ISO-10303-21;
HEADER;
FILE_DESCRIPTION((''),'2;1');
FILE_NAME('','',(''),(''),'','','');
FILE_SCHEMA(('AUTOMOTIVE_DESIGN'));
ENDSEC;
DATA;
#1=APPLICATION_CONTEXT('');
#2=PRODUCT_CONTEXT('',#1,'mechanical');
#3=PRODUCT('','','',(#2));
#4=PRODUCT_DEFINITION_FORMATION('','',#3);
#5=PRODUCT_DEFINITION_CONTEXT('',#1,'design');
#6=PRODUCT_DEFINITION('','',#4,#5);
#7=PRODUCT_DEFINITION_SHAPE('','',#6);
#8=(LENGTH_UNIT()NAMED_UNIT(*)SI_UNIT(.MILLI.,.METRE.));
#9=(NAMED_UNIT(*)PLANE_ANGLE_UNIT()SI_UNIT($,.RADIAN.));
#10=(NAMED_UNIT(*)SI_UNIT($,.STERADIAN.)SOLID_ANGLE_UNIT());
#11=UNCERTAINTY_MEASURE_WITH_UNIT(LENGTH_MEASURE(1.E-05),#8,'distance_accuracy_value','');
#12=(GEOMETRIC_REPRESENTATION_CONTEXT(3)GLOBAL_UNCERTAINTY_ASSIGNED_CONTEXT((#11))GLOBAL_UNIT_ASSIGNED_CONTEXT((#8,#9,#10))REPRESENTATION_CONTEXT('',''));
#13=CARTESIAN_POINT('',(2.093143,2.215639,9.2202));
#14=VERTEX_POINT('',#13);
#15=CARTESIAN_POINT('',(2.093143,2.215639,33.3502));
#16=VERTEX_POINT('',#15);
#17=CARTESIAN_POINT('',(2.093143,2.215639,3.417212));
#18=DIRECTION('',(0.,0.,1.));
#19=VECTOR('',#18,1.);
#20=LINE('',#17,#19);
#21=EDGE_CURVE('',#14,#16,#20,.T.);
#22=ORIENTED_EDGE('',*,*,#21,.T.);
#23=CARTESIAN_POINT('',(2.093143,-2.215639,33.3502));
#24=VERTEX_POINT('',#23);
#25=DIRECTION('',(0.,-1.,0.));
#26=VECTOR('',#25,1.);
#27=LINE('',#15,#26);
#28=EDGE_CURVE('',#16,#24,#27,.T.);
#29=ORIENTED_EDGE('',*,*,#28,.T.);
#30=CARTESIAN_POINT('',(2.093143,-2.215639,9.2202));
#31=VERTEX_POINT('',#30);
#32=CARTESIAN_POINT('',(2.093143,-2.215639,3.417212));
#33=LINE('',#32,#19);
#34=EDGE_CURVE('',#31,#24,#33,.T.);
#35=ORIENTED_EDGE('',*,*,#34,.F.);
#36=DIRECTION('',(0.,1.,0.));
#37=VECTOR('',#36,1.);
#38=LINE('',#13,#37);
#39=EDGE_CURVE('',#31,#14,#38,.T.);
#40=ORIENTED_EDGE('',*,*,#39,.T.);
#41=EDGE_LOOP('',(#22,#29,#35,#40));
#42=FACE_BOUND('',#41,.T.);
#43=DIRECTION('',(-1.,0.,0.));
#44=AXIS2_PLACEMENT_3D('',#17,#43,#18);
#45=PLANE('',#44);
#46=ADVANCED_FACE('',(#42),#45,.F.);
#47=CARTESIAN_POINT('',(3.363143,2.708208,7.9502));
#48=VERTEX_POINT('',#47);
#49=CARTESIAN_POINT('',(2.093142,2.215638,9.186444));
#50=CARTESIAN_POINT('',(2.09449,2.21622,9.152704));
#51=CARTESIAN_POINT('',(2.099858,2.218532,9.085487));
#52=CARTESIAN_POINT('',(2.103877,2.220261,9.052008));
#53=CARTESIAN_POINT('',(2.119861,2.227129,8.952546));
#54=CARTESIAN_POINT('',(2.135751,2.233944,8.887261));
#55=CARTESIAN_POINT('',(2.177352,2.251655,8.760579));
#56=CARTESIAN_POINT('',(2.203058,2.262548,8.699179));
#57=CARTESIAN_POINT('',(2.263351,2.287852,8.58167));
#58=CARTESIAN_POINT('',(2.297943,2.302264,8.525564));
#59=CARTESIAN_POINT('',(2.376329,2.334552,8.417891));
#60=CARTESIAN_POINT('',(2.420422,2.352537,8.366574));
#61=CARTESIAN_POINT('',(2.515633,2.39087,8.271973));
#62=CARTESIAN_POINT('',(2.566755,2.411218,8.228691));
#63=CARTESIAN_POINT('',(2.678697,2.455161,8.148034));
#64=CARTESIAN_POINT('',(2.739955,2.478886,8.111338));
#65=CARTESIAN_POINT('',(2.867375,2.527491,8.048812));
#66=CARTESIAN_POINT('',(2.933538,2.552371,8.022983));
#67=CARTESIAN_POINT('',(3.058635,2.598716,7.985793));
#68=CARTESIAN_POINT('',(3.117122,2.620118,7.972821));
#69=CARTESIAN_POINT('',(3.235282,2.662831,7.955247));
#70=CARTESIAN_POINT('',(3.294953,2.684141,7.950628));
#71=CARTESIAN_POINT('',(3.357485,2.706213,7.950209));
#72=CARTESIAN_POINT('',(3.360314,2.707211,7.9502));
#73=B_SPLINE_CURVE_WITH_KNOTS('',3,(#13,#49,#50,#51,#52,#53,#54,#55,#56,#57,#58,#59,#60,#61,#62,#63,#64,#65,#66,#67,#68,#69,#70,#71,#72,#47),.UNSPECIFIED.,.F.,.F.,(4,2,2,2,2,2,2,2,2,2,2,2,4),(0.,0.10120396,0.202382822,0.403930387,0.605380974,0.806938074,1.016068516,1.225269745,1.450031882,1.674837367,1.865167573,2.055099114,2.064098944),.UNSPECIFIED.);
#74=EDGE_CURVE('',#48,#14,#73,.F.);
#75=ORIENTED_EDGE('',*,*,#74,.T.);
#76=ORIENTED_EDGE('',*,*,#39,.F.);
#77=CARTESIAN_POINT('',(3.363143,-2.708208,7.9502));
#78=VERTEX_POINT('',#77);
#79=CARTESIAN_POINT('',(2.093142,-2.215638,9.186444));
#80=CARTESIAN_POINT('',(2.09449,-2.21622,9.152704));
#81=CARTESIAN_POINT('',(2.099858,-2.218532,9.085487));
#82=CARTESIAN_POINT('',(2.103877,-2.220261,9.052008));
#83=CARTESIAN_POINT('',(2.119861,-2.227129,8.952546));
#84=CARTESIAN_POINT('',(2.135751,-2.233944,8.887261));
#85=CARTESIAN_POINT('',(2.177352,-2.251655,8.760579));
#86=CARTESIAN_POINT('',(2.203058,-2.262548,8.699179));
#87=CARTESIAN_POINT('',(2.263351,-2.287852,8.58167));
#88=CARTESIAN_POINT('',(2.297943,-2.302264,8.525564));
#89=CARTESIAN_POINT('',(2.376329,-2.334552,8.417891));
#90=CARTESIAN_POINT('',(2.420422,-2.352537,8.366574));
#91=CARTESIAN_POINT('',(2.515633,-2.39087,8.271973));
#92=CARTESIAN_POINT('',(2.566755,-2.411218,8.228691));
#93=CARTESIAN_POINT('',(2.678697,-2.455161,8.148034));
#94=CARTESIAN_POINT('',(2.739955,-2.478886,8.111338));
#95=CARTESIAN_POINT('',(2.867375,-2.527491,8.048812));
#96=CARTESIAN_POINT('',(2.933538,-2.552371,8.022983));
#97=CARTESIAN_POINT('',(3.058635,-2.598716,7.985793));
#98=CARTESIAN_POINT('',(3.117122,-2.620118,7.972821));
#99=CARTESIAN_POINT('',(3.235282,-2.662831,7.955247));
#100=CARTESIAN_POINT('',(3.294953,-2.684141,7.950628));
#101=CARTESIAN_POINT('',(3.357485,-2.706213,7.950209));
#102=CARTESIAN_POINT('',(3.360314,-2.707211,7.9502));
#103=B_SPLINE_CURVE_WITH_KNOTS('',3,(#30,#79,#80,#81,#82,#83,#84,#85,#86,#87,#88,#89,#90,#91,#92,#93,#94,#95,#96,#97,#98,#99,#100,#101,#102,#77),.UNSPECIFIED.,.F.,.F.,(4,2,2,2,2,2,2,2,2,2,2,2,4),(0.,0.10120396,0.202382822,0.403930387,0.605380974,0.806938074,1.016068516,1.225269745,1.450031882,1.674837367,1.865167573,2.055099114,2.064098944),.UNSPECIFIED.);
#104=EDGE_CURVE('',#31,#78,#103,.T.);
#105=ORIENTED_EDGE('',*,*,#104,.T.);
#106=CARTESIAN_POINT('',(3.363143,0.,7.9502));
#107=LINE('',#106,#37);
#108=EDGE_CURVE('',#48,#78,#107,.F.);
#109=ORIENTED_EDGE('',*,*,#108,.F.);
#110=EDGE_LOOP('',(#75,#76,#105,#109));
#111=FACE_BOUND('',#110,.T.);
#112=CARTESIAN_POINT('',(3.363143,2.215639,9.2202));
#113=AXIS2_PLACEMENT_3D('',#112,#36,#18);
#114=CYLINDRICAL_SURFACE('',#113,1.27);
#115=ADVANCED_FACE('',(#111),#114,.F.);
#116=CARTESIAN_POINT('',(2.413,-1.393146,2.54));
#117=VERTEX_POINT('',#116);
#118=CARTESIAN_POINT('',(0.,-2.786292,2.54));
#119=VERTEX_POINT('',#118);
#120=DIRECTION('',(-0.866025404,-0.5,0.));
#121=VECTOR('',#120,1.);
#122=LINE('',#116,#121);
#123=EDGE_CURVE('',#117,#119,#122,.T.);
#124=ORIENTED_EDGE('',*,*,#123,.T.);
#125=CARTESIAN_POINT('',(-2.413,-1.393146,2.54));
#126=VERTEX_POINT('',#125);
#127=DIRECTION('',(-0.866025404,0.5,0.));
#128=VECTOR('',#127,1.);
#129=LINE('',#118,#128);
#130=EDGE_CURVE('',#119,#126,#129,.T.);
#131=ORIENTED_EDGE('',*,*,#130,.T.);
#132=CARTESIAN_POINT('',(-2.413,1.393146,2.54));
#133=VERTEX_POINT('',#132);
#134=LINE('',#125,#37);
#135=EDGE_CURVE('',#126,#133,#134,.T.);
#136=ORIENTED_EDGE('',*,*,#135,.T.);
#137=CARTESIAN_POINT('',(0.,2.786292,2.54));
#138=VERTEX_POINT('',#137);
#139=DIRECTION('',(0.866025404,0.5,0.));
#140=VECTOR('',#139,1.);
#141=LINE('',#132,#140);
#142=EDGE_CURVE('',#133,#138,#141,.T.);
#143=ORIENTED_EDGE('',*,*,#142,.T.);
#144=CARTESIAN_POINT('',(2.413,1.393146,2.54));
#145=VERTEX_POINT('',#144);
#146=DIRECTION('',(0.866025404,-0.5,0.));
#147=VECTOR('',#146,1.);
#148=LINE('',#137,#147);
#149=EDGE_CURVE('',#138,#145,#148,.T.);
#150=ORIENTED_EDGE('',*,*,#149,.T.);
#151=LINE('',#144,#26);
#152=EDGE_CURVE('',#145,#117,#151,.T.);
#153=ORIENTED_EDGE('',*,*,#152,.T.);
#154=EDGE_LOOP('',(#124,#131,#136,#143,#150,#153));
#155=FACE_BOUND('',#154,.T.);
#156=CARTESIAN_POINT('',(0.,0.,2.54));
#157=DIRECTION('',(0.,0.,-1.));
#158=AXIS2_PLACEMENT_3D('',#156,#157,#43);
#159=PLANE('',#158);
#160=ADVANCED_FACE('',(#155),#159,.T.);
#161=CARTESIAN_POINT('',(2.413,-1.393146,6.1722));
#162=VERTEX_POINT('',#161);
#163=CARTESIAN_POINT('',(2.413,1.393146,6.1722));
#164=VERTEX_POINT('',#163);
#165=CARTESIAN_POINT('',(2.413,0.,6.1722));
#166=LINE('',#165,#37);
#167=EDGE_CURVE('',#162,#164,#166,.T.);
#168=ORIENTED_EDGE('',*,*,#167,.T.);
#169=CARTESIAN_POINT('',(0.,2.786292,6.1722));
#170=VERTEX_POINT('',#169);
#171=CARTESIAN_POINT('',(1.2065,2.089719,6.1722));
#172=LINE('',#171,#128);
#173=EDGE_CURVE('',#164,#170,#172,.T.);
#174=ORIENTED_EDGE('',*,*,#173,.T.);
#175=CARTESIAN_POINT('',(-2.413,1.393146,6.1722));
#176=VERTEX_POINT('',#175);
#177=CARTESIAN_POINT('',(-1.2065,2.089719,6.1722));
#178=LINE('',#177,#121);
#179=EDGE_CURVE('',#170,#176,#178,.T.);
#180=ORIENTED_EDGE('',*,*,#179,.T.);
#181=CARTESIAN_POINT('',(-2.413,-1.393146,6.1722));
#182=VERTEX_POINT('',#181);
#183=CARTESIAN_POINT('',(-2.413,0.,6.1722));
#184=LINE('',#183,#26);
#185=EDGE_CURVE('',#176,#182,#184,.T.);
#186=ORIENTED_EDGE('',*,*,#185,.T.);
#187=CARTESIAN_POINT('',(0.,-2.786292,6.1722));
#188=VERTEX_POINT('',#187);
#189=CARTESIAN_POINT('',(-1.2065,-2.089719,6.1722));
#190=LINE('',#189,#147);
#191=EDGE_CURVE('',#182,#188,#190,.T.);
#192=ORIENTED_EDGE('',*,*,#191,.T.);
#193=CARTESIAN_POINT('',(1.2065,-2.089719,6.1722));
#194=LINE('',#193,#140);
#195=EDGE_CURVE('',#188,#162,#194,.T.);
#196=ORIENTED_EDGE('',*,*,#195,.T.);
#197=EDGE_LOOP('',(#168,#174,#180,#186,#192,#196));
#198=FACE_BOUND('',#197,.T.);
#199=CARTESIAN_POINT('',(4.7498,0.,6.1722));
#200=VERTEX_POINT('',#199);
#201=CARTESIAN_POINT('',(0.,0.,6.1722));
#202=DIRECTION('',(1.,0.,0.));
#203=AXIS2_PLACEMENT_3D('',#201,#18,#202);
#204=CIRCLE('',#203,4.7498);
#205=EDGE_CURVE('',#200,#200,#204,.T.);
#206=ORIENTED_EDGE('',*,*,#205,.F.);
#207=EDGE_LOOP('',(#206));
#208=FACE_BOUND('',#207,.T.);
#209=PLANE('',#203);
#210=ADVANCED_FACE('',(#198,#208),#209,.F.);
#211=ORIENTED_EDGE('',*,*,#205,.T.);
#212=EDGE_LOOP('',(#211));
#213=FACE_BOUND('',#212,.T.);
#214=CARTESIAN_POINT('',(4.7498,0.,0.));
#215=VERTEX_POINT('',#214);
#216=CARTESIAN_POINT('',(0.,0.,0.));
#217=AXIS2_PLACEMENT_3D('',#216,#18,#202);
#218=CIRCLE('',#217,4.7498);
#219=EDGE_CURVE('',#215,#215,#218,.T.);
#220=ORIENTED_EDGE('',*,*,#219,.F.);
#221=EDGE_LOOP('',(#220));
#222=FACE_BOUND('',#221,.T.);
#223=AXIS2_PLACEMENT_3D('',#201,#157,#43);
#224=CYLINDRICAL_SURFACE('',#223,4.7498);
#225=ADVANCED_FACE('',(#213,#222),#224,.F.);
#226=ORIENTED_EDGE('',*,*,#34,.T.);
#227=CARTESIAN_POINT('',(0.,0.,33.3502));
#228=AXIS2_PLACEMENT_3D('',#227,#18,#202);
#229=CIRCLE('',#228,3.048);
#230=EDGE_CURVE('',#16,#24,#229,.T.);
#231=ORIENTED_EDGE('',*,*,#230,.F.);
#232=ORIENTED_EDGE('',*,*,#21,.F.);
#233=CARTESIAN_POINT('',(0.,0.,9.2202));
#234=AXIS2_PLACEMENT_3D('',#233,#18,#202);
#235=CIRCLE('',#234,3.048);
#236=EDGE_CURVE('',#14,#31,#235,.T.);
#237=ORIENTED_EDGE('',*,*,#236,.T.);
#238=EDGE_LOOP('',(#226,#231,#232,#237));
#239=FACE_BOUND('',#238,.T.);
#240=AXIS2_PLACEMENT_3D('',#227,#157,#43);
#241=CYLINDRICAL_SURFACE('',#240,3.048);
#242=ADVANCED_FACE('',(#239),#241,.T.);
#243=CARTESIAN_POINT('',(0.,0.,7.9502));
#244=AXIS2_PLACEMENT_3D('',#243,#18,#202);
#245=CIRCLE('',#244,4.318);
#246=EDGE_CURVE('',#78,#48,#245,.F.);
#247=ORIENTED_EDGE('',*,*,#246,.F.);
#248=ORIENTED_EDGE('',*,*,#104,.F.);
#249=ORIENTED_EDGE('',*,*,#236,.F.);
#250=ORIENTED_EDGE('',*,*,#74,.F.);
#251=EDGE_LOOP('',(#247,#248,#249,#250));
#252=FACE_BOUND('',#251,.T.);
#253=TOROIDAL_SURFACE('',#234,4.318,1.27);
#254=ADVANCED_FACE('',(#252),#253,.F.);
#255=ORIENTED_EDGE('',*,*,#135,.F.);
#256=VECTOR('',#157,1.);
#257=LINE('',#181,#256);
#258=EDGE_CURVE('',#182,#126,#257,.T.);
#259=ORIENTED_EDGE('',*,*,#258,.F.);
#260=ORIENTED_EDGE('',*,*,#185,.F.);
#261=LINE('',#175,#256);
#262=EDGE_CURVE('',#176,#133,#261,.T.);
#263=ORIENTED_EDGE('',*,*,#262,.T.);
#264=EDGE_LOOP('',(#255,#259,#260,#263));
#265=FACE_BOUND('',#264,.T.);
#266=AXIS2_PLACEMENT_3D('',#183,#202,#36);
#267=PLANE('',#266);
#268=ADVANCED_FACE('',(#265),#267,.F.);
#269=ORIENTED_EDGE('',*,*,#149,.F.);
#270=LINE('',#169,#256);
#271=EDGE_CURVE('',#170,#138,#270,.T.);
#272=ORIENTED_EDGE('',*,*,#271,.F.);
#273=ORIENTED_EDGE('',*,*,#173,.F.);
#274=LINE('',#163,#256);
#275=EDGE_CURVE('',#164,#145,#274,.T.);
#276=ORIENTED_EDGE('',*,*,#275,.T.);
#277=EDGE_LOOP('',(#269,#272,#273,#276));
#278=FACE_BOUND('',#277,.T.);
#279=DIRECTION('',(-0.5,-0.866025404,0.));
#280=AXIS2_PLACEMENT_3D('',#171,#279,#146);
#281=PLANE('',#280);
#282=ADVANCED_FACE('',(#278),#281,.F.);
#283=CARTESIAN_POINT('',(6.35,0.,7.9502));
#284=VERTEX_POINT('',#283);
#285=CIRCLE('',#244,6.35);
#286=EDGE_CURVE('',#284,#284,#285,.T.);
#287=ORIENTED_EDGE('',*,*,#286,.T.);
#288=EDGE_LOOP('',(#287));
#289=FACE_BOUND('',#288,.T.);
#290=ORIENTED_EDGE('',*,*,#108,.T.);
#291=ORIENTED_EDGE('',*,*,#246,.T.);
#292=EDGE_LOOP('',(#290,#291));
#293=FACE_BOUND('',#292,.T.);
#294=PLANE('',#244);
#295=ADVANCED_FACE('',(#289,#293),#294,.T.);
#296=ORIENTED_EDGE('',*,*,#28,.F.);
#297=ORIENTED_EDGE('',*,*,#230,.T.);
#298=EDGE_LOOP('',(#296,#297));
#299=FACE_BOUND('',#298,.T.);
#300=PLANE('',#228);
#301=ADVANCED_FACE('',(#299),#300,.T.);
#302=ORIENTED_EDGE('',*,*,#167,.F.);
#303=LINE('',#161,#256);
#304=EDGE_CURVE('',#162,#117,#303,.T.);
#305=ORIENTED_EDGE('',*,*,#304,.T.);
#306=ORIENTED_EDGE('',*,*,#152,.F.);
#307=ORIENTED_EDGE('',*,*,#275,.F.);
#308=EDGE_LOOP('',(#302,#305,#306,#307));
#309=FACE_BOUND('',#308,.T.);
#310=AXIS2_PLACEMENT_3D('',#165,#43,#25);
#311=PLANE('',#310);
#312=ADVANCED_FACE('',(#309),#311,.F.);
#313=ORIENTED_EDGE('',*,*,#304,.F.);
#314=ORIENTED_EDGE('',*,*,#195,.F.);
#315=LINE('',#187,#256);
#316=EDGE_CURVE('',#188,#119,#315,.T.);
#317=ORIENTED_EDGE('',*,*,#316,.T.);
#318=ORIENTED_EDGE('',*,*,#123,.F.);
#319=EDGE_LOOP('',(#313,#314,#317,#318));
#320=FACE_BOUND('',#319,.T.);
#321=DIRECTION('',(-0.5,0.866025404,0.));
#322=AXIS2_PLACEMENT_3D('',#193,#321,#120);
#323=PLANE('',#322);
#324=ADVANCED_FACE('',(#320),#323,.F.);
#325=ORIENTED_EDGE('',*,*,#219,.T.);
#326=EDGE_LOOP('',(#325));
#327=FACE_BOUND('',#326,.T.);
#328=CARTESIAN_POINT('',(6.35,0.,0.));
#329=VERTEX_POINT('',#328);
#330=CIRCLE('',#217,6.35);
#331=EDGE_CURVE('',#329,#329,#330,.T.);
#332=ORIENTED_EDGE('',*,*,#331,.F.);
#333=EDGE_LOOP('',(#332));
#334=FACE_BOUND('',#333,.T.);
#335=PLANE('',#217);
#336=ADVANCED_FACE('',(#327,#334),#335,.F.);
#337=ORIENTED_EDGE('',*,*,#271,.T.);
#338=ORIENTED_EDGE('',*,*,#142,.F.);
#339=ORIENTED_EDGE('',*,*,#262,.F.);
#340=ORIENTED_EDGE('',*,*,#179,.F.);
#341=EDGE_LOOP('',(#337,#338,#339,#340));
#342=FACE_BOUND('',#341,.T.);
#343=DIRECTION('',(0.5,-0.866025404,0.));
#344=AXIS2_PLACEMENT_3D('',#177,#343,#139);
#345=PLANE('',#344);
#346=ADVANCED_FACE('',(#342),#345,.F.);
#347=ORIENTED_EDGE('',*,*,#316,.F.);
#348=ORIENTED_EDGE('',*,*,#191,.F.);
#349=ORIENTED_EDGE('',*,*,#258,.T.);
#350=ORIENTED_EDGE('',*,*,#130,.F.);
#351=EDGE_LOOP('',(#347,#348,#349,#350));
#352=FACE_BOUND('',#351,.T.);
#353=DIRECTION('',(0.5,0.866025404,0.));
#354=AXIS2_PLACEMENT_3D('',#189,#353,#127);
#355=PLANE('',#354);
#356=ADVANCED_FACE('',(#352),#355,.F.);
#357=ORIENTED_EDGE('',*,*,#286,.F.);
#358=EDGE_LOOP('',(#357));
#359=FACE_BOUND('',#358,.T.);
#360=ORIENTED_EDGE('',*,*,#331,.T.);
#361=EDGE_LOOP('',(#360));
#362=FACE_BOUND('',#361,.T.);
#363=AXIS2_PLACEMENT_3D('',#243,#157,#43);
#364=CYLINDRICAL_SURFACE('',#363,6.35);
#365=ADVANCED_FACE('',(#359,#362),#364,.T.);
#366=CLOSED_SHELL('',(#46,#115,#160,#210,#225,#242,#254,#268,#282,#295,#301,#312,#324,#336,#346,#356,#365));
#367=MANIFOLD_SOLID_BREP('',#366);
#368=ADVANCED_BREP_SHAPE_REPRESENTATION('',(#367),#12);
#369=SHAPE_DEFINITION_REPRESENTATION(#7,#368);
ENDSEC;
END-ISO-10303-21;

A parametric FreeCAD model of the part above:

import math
import FreeCAD as App
import Part
import Sketcher
Q = App.Units.Quantity


def edges_at(feature, points):
    """Names of the edges that pass closest to the given points."""
    edges = feature.Shape.Edges
    near = lambda p: min(range(len(edges)), key=lambda i: edges[i].distToShape(Part.Vertex(*p))[0])
    return sorted({f"Edge{near(p) + 1}" for p in points})

doc = App.newDocument("Part")
params = doc.addObject("Spreadsheet::Sheet", "Params")
for row, (alias, value) in enumerate([
    ("pad1_length", "0.243 in"),
    ("sketch2_diameter", "0.5 in"),
    ("sketch2_diameter2", "0.374 in"),
    ("pad2_length", "0.243 in"),
    ("sketch3_diameter", "0.5 in"),
    ("pad3_length", "0.07 in"),
    ("sketch4_diameter", "0.24 in"),
    ("pad4_length", "1 in"),
    ("sketch5_radius", "0.12 in"),
    ("pocket1_length", "1 in"),
    ("fillet_radius", "0.05 in"),
    ("pocket2_length", "0.1 in"),
], start=1):
    params.set(f"A{row}", alias)
    params.set(f"B{row}", "=" + value)
    params.setAlias(f"B{row}", alias)

body = doc.addObject("PartDesign::Body", "Body")

sketch1 = body.newObject("Sketcher::SketchObject", "Sketch")
sketch1.AttachmentSupport = (doc.getObject("XY_Plane"), [""])
sketch1.MapMode = "FlatFace"
sketch1.addGeometry([
    Part.LineSegment(App.Vector(-2.413, 1.393146, 0), App.Vector(-2.413, -1.393146, 0)),
    Part.LineSegment(App.Vector(-2.413, -1.393146, 0), App.Vector(0, -2.786292, 0)),
    Part.LineSegment(App.Vector(0, -2.786292, 0), App.Vector(2.413, -1.393146, 0)),
    Part.LineSegment(App.Vector(2.413, -1.393146, 0), App.Vector(2.413, 1.393146, 0)),
    Part.LineSegment(App.Vector(2.413, 1.393146, 0), App.Vector(0, 2.786292, 0)),
    Part.LineSegment(App.Vector(0, 2.786292, 0), App.Vector(-2.413, 1.393146, 0)),
], False)
sketch1.addConstraint([
    Sketcher.Constraint("Coincident", 0, 2, 1, 1),
    Sketcher.Constraint("Coincident", 1, 2, 2, 1),
    Sketcher.Constraint("Coincident", 2, 2, 3, 1),
    Sketcher.Constraint("Coincident", 3, 2, 4, 1),
    Sketcher.Constraint("Coincident", 4, 2, 5, 1),
    Sketcher.Constraint("Coincident", 5, 2, 0, 1),
    Sketcher.Constraint("Vertical", 0),
    Sketcher.Constraint("Vertical", 3),
    Sketcher.Constraint("Symmetric", 0, 2, 3, 2, -1, 1),
    Sketcher.Constraint("Symmetric", 1, 2, 4, 2, -1, 1),
    Sketcher.Constraint("PointOnObject", 1, 2, -2),
    Sketcher.Constraint("Parallel", 2, 5),
    Sketcher.Constraint("Horizontal", 0, 2, 2, 2),
    Sketcher.Constraint("Angle", 1, Q("-30 deg")),
    Sketcher.Constraint("DistanceX", 0, 2, 2, 2, Q("0.19 in")),
    Sketcher.Constraint("DistanceY", 0, 2, 0, 1, 2.786292),
])
pad1 = body.newObject("PartDesign::Pad", "Pad")
pad1.Profile = sketch1
pad1.setExpression("Length", "Params.pad1_length")
body2 = doc.addObject("PartDesign::Body", "Body001")

sketch2 = body2.newObject("Sketcher::SketchObject", "Sketch001")
sketch2.AttachmentSupport = (doc.getObject("XY_Plane001"), [""])
sketch2.MapMode = "FlatFace"
sketch2.addGeometry([
    Part.Circle(App.Vector(0, 0, 0), App.Vector(0, 0, 1), 6.35),
    Part.Circle(App.Vector(0, 0, 0), App.Vector(0, 0, 1), 4.7498),
], False)
sketch2.addConstraint([
    Sketcher.Constraint("Coincident", 0, 3, -1, 1),
    Sketcher.Constraint("Coincident", 1, 3, -1, 1),
    Sketcher.Constraint("Diameter", 0, Q("0.5 in")),
    Sketcher.Constraint("Diameter", 1, Q("0.374 in")),
])
sketch2.setExpression("Constraints[2]", "Params.sketch2_diameter")
sketch2.setExpression("Constraints[3]", "Params.sketch2_diameter2")
pad2 = body2.newObject("PartDesign::Pad", "Pad001")
pad2.Profile = sketch2
pad2.setExpression("Length", "Params.pad2_length")
body.AllowCompound = True
doc.recompute()

boolean = body.newObject("PartDesign::Boolean", "Boolean")
boolean.Type = "Fuse"
boolean.addObjects([body2])

sketch3 = body.newObject("Sketcher::SketchObject", "Sketch002")
sketch3.AttachmentSupport = (doc.getObject("XY_Plane"), [""])
sketch3.MapMode = "FlatFace"
sketch3.AttachmentOffset = App.Placement(App.Vector(0, 0, 0.243 * 25.4), App.Rotation())
sketch3.addGeometry(Part.Circle(App.Vector(0, 0, 0), App.Vector(0, 0, 1), 6.35), False)
sketch3.addConstraint([
    Sketcher.Constraint("Coincident", 0, 3, -1, 1),
    Sketcher.Constraint("Diameter", 0, Q("0.5 in")),
])
sketch3.setExpression("Constraints[1]", "Params.sketch3_diameter")
pad3 = body.newObject("PartDesign::Pad", "Pad002")
pad3.Profile = sketch3
pad3.setExpression("Length", "Params.pad3_length")

sketch4 = body.newObject("Sketcher::SketchObject", "Sketch003")
sketch4.AttachmentSupport = (doc.getObject("XY_Plane"), [""])
sketch4.MapMode = "FlatFace"
sketch4.AttachmentOffset = App.Placement(App.Vector(0, 0, 0.313 * 25.4), App.Rotation())
sketch4.addGeometry(Part.Circle(App.Vector(0, 0, 0), App.Vector(0, 0, 1), 3.048), False)
sketch4.addConstraint([
    Sketcher.Constraint("Coincident", 0, 3, -1, 1),
    Sketcher.Constraint("Diameter", 0, Q("0.24 in")),
])
sketch4.setExpression("Constraints[1]", "Params.sketch4_diameter")
pad4 = body.newObject("PartDesign::Pad", "Pad003")
pad4.Profile = sketch4
pad4.setExpression("Length", "Params.pad4_length")

sketch5 = body.newObject("Sketcher::SketchObject", "Sketch004")
sketch5.AttachmentSupport = (doc.getObject("XY_Plane"), [""])
sketch5.MapMode = "FlatFace"
sketch5.AttachmentOffset = App.Placement(App.Vector(0, 0, 0.313 * 25.4), App.Rotation())
sketch5.addGeometry([
    Part.LineSegment(App.Vector(2.093143, 2.215639, 0), App.Vector(2.093143, -2.215639, 0)),
    Part.ArcOfCircle(Part.Circle(App.Vector(0, 0, 0), App.Vector(0, 0, 1), 3.048), math.radians(-46.628446), math.radians(46.628446)),
], False)
sketch5.addConstraint([
    Sketcher.Constraint("Coincident", 0, 1, 1, 2),
    Sketcher.Constraint("Coincident", 1, 1, 0, 2),
    Sketcher.Constraint("Vertical", 0),
    Sketcher.Constraint("Coincident", 1, 3, -1, 1),
    Sketcher.Constraint("Radius", 1, Q("0.12 in")),
    Sketcher.Constraint("DistanceY", 0, 2, 0, 1, 4.431278),
])
sketch5.setExpression("Constraints[4]", "Params.sketch5_radius")
pocket1 = body.newObject("PartDesign::Pocket", "Pocket")
pocket1.Profile = sketch5
pocket1.setExpression("Length", "Params.pocket1_length")
pocket1.Reversed = True
doc.recompute()

fillet = body.newObject("PartDesign::Fillet", "Fillet")
fillet.Base = (pocket1, edges_at(pocket1, [(-3.048, 0, 7.95), (2.093, 0, 7.95)]))
fillet.setExpression("Radius", "Params.fillet_radius")

sketch6 = body.newObject("Sketcher::SketchObject", "Sketch005")
sketch6.AttachmentSupport = (doc.getObject("XY_Plane"), [""])
sketch6.MapMode = "FlatFace"
sketch6.addGeometry([
    Part.LineSegment(App.Vector(-2.413, -1.393146, 0), App.Vector(-2.413, 1.393146, 0)),
    Part.LineSegment(App.Vector(-2.413, 1.393146, 0), App.Vector(0, 2.786292, 0)),
    Part.LineSegment(App.Vector(0, 2.786292, 0), App.Vector(2.413, 1.393146, 0)),
    Part.LineSegment(App.Vector(2.413, 1.393146, 0), App.Vector(2.413, -1.393146, 0)),
    Part.LineSegment(App.Vector(2.413, -1.393146, 0), App.Vector(0, -2.786292, 0)),
    Part.LineSegment(App.Vector(0, -2.786292, 0), App.Vector(-2.413, -1.393146, 0)),
], False)
sketch6.addConstraint([
    Sketcher.Constraint("Coincident", 0, 2, 1, 1),
    Sketcher.Constraint("Coincident", 1, 2, 2, 1),
    Sketcher.Constraint("Coincident", 2, 2, 3, 1),
    Sketcher.Constraint("Coincident", 3, 2, 4, 1),
    Sketcher.Constraint("Coincident", 4, 2, 5, 1),
    Sketcher.Constraint("Coincident", 5, 2, 0, 1),
    Sketcher.Constraint("Vertical", 0),
    Sketcher.Constraint("Vertical", 3),
    Sketcher.Constraint("Symmetric", 0, 2, 3, 2, -1, 1),
    Sketcher.Constraint("Symmetric", 1, 2, 4, 2, -1, 1),
    Sketcher.Constraint("PointOnObject", 1, 2, -2),
    Sketcher.Constraint("Parallel", 2, 5),
    Sketcher.Constraint("Horizontal", 0, 2, 2, 2),
    Sketcher.Constraint("Angle", 1, Q("30 deg")),
    Sketcher.Constraint("DistanceX", 0, 2, 2, 2, Q("0.19 in")),
    Sketcher.Constraint("DistanceY", 0, 1, 0, 2, 2.786292),
])
pocket2 = body.newObject("PartDesign::Pocket", "Pocket001")
pocket2.Profile = sketch6
pocket2.setExpression("Length", "Params.pocket2_length")
pocket2.Reversed = True

doc.recompute()
